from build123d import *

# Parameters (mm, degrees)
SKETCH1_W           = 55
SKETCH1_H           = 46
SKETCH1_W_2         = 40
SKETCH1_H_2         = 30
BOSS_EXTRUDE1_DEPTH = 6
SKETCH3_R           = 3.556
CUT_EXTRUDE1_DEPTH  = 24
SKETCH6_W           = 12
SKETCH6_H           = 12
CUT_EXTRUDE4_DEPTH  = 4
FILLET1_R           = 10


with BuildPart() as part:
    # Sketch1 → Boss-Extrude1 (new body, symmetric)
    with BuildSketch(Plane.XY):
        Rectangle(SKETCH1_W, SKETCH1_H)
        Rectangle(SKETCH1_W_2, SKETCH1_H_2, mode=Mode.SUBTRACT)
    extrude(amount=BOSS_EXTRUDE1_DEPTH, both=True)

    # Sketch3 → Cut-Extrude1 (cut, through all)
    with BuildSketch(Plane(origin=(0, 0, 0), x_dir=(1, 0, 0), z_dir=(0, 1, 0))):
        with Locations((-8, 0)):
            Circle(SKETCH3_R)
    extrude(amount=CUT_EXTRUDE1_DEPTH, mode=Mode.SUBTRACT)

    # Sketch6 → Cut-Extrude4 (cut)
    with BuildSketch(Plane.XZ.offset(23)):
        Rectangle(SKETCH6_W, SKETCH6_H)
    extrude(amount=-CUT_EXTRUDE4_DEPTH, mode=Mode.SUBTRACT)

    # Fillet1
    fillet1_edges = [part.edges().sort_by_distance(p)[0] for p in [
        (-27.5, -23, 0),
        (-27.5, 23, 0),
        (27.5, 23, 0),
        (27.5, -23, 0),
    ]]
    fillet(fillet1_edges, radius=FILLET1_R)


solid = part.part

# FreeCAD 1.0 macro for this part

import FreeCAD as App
import Part
import Sketcher

V = App.Vector


def edges_at(feature, points):
    """Names of the edges that pass closest to the given points."""
    edges = feature.Shape.Edges
    near = lambda p: min(range(len(edges)), key=lambda i: edges[i].distToShape(Part.Vertex(*p))[0])
    return sorted({f"Edge{near(p) + 1}" for p in points})


def add_polygon(sketch, points):
    """Adds a closed chain of lines whose ends are joined by coincident constraints."""
    first, n = sketch.GeometryCount, len(points)
    for a, b in zip(points, points[1:] + points[:1]):
        sketch.addGeometry(Part.LineSegment(App.Vector(*a, 0), App.Vector(*b, 0)), False)
    for i in range(n):
        sketch.addConstraint(Sketcher.Constraint("Coincident", first + i, 2, first + (i + 1) % n, 1))

doc = App.newDocument("Part")
body = doc.addObject("PartDesign::Body", "Body")

# Sketch on XY plane
sketch1 = body.newObject("Sketcher::SketchObject", "Sketch")
sketch1.AttachmentSupport = (doc.getObject("XY_Plane"), [""])
sketch1.MapMode = "FlatFace"
add_polygon(sketch1, [(-28, 23), (-28, -23), (28, -23), (28, 23)])  # lines 0-3
add_polygon(sketch1, [(20, -15), (-20, -15), (-20, 15), (20, 15)])  # lines 4-7
sketch1.addConstraint([
    Sketcher.Constraint("Vertical", 0),
    Sketcher.Constraint("Horizontal", 1),
    Sketcher.Constraint("Vertical", 2),
    Sketcher.Constraint("Horizontal", 3),
    Sketcher.Constraint("Horizontal", 4),
    Sketcher.Constraint("Vertical", 5),
    Sketcher.Constraint("Horizontal", 6),
    Sketcher.Constraint("Vertical", 7),
    Sketcher.Constraint("Symmetric", 0, 2, 2, 2, -1, 1),
    Sketcher.Constraint("Symmetric", 4, 2, 6, 2, -1, 1),
    Sketcher.Constraint("DistanceX", 1, 1, 1, 2, 55.0),
    Sketcher.Constraint("DistanceX", 4, 2, 4, 1, 40.0),
    Sketcher.Constraint("DistanceY", 0, 2, 0, 1, 46.0),
    Sketcher.Constraint("DistanceY", 5, 1, 5, 2, 30.0),
])
pad1 = body.newObject("PartDesign::Pad", "Pad")
pad1.Profile = sketch1
pad1.Length = 12
pad1.Midplane = True

# Sketch on XZ plane
sketch2 = body.newObject("Sketcher::SketchObject", "Sketch001")
sketch2.AttachmentSupport = (doc.getObject("XZ_Plane"), [""])
sketch2.MapMode = "FlatFace"
sketch2.addGeometry(Part.Circle(V(-8, 0, 0), V(0, 0, 1), 3.6), False)
sketch2.addConstraint([
    Sketcher.Constraint("PointOnObject", 0, 3, -1),
    Sketcher.Constraint("Diameter", 0, 7.112),
    Sketcher.Constraint("DistanceX", 0, 3, -1, 1, 8.0),
])
pocket1 = body.newObject("PartDesign::Pocket", "Pocket")
pocket1.Profile = sketch2
pocket1.Type = "ThroughAll"

# Sketch on XZ plane
sketch3 = body.newObject("Sketcher::SketchObject", "Sketch002")
sketch3.AttachmentSupport = (doc.getObject("XZ_Plane"), [""])
sketch3.MapMode = "FlatFace"
sketch3.AttachmentOffset = App.Placement(V(0, 0, 23), App.Rotation())
add_polygon(sketch3, [(-6, 6), (-6, -6), (6, -6), (6, 6)])  # lines 0-3
sketch3.addConstraint([
    Sketcher.Constraint("Vertical", 0),
    Sketcher.Constraint("Horizontal", 1),
    Sketcher.Constraint("Vertical", 2),
    Sketcher.Constraint("Horizontal", 3),
    Sketcher.Constraint("Symmetric", 0, 2, 2, 2, -1, 1),
    Sketcher.Constraint("Equal", 3, 0),
    Sketcher.Constraint("DistanceX", 1, 1, 1, 2, 12.0),
])
pocket2 = body.newObject("PartDesign::Pocket", "Pocket001")
pocket2.Profile = sketch3
pocket2.Length = 4
doc.recompute()

fillet = body.newObject("PartDesign::Fillet", "Fillet")
fillet.Base = (pocket2, edges_at(pocket2, [
    (-27.5, -23, 0),
    (-27.5, 23, 0),
    (27.5, 23, 0),
    (27.5, -23, 0),
]))
fillet.Radius = 10

doc.recompute()
